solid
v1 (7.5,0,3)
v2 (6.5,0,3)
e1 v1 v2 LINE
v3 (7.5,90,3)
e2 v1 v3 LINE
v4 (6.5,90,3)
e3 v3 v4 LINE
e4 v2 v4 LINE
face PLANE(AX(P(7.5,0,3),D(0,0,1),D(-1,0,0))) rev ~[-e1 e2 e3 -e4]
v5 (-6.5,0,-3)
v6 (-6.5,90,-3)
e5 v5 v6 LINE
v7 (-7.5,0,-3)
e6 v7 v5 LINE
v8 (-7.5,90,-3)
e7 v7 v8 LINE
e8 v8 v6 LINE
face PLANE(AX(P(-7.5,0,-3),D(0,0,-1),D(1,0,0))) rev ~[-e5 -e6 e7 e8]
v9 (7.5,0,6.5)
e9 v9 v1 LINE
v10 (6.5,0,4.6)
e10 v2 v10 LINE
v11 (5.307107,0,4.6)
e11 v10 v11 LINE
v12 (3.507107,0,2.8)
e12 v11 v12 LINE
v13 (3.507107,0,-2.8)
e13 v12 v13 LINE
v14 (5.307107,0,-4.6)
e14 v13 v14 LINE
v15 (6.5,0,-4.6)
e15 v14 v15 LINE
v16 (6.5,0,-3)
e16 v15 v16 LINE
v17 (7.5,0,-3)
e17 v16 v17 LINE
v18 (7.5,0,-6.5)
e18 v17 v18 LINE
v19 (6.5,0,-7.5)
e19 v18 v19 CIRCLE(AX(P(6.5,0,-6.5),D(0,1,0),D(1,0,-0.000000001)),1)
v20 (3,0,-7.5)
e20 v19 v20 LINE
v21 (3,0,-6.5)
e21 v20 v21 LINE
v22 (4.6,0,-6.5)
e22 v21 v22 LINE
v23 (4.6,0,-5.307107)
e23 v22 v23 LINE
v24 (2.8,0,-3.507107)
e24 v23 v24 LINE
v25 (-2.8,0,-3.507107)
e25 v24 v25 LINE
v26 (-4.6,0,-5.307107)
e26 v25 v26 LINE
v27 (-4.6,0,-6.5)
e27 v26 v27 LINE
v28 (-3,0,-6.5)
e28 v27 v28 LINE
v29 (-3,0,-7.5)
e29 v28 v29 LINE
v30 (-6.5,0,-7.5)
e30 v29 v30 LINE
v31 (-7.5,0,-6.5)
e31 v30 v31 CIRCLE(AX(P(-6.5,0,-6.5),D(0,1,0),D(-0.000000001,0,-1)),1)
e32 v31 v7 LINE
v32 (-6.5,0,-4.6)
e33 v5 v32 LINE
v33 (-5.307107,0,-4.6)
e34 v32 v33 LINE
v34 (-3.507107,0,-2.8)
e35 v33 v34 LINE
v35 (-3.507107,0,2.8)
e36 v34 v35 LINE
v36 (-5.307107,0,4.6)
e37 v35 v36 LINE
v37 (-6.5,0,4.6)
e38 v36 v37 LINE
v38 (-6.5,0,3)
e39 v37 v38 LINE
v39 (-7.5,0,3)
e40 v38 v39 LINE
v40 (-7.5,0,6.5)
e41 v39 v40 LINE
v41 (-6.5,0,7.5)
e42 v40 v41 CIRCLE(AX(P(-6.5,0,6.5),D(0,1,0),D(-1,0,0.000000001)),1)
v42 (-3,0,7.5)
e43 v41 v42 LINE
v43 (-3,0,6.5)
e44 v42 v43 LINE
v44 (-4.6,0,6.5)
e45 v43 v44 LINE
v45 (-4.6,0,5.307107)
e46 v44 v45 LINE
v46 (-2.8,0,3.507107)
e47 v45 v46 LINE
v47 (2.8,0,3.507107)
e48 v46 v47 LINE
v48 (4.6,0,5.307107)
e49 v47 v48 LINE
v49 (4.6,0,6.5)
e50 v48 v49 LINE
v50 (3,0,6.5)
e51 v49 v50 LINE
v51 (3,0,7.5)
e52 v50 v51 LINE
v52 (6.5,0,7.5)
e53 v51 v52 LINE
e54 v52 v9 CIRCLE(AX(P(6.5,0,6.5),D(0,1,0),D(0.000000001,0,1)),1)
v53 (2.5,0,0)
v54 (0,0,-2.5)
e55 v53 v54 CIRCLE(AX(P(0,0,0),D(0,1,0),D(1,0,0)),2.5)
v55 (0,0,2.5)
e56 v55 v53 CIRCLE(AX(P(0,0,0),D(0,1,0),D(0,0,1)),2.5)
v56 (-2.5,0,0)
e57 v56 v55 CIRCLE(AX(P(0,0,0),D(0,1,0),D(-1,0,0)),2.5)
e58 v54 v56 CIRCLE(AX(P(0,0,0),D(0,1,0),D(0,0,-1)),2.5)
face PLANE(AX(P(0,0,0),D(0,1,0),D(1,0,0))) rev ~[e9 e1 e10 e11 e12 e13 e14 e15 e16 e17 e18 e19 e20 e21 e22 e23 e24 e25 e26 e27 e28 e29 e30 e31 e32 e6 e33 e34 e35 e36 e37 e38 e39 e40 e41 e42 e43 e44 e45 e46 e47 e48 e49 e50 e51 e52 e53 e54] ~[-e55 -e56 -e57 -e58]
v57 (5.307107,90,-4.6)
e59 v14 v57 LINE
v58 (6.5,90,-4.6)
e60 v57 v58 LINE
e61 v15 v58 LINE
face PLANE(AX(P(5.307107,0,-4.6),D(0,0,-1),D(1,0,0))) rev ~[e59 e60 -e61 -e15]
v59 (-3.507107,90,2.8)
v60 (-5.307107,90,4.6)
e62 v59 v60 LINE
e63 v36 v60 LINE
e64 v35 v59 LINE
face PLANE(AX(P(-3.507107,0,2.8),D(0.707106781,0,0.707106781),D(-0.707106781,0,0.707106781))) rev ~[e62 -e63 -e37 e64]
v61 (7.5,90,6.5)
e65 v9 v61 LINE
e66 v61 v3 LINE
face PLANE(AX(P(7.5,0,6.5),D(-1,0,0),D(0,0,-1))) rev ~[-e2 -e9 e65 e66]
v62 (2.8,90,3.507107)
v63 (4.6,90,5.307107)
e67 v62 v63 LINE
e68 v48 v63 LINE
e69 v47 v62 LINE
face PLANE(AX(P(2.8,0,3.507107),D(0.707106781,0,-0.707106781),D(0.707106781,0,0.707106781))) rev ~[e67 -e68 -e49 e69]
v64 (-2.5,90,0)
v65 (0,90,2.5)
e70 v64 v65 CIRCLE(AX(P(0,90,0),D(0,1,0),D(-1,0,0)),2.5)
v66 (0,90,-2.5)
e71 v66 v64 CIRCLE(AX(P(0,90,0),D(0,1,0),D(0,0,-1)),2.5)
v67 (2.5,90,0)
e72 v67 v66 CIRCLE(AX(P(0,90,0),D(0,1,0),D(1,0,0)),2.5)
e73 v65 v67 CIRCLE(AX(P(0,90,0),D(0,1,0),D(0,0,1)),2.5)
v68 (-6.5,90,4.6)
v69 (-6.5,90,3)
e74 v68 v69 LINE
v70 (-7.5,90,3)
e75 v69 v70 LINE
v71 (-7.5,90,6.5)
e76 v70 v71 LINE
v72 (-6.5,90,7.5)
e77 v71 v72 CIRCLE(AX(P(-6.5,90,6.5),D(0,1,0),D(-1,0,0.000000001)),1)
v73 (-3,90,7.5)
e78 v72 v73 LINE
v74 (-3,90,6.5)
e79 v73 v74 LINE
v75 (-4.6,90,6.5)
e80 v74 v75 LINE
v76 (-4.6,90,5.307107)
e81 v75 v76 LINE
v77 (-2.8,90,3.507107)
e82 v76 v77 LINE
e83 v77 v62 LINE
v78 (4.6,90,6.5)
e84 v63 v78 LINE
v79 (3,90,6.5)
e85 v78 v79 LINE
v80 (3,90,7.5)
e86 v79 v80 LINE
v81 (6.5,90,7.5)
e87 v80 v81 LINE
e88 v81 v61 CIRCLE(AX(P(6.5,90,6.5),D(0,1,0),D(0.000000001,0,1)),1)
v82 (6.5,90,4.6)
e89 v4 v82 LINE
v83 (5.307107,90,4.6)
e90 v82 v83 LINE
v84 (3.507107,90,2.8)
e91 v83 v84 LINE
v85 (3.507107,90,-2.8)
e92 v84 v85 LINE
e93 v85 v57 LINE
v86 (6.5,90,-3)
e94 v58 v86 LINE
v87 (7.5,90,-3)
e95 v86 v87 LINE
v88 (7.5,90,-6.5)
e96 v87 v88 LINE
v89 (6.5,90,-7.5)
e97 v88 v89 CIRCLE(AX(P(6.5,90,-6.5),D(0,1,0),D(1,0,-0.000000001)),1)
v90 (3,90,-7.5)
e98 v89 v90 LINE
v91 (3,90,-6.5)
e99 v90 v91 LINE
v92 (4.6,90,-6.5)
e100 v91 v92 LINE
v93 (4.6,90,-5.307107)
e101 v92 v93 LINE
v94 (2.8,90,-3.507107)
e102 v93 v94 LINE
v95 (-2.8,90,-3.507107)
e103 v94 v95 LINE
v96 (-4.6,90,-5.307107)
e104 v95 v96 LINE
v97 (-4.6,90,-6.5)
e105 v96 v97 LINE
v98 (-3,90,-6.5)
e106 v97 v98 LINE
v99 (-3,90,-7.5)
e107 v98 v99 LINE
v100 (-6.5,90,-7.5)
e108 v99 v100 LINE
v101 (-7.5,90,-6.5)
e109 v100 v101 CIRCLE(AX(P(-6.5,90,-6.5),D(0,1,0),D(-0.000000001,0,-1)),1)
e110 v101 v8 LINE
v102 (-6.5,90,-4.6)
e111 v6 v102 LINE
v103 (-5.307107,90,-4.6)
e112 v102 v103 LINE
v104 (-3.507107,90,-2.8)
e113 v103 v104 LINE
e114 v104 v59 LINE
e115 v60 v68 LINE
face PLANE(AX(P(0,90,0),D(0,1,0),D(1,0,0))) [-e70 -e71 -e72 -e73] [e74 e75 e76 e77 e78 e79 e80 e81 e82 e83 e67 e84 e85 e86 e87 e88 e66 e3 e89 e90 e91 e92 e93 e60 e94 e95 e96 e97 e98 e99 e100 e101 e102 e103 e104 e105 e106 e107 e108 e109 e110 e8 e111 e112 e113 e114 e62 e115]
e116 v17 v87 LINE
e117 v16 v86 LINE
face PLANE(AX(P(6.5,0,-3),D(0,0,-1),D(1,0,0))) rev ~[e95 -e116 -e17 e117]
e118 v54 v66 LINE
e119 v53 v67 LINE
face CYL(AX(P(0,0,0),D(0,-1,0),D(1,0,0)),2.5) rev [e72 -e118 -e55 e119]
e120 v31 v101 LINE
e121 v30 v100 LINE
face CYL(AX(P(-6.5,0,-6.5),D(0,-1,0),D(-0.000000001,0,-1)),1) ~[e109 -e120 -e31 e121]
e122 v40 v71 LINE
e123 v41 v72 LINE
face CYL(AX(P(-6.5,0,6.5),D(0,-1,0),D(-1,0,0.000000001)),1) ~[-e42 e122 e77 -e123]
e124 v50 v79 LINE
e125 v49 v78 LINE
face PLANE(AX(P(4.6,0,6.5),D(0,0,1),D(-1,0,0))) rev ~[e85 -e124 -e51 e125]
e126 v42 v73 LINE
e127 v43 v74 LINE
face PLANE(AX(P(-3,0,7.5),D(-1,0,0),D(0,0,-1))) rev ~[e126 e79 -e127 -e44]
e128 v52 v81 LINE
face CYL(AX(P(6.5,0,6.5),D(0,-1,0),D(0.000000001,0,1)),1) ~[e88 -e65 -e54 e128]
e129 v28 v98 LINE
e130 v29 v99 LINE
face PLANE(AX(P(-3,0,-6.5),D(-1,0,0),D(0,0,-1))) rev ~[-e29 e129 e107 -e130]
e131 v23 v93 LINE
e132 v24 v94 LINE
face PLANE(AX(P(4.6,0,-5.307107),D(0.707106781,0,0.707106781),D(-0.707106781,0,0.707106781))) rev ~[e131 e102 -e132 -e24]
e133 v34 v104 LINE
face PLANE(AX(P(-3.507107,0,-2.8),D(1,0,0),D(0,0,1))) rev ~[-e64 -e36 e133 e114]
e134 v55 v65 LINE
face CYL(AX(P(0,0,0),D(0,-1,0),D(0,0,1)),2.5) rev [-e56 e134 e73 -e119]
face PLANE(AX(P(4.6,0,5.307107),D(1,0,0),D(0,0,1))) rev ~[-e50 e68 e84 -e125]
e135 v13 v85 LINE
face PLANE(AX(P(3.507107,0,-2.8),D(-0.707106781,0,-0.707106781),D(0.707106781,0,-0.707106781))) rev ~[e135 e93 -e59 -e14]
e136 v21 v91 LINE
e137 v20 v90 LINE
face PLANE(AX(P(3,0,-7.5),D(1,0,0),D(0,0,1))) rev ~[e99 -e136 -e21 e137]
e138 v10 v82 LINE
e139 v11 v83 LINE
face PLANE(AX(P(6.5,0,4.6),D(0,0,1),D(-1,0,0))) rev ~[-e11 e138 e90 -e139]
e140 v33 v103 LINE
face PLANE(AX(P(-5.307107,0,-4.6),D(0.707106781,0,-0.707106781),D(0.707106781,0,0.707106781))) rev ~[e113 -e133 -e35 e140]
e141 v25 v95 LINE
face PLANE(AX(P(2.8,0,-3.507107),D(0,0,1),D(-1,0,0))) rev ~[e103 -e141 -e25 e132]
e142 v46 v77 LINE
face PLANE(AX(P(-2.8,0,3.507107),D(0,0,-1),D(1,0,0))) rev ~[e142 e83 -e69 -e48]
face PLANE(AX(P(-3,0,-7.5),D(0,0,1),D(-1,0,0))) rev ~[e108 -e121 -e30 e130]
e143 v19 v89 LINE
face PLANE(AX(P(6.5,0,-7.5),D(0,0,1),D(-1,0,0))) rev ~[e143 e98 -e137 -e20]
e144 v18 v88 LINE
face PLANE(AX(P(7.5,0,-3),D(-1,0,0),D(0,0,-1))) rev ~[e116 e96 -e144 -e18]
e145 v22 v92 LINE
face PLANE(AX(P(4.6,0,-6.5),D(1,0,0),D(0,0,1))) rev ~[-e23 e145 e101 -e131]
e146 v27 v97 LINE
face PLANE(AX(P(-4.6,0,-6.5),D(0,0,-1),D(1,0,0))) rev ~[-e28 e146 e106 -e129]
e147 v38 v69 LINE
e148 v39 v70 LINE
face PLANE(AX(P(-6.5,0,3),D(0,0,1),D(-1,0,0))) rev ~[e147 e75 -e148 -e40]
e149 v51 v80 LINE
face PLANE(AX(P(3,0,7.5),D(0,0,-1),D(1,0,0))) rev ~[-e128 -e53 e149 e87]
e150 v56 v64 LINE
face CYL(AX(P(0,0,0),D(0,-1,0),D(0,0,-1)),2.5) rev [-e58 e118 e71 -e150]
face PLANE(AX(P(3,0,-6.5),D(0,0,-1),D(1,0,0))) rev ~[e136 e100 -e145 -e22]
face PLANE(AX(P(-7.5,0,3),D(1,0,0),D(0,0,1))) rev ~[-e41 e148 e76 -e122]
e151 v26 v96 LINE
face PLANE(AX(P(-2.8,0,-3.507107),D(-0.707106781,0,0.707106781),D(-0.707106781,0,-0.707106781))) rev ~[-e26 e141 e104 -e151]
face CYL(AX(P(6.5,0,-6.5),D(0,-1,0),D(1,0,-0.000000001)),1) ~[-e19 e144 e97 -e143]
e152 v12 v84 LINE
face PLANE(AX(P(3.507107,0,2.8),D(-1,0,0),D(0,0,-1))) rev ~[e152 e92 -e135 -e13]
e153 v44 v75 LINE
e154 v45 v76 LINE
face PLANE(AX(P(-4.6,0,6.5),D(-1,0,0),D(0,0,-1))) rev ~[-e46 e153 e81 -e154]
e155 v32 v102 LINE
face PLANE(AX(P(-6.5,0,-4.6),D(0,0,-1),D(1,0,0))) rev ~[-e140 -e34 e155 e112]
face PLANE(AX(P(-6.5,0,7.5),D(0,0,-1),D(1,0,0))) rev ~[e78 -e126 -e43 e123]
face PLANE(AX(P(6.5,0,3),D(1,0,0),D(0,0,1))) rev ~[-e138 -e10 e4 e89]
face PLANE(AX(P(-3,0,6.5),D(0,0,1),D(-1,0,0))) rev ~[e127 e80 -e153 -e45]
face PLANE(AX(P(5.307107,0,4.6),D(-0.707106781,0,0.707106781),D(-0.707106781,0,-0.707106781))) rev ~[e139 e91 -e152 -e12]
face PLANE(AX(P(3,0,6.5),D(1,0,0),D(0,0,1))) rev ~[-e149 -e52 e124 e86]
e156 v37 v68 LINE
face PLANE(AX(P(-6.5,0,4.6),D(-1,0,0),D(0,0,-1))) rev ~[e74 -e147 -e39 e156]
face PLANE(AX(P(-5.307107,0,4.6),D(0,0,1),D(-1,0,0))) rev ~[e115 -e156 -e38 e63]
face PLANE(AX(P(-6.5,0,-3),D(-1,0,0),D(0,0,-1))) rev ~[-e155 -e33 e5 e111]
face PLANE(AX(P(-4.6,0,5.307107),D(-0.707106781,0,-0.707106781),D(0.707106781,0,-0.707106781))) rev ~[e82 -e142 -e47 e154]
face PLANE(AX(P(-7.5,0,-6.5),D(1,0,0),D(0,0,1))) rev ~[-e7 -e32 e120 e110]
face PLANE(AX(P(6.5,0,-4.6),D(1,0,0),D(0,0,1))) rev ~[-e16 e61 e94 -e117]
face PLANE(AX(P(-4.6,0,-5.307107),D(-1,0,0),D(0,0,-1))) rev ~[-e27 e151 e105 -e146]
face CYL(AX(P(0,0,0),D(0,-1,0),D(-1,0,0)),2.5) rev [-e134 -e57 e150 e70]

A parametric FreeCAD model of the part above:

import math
import FreeCAD as App
import Part
import Sketcher

V = App.Vector
Q = App.Units.Quantity

doc = App.newDocument("Part")
body = doc.addObject("PartDesign::Body", "Body")

sketch1 = doc.addObject("Sketcher::SketchObject", "Sketch")
body.addObject(sketch1)
sketch1.AttachmentSupport = (doc.XZ_Plane, [""])
sketch1.MapMode = "FlatFace"
sketch1.addGeometry([
    Part.LineSegment(V(-7.5, 3, 0), V(-7.5, 6.5, 0)),
    Part.ArcOfCircle(Part.Circle(V(-6.5, 6.5, 0), V(0, 0, 1), 1), math.radians(90), math.radians(180)),
    Part.LineSegment(V(-6.5, 7.5, 0), V(-3, 7.5, 0)),
    Part.LineSegment(V(-3, 7.5, 0), V(-3, 6.5, 0)),
    Part.LineSegment(V(-3, 6.5, 0), V(-4.6, 6.5, 0)),
    Part.LineSegment(V(-4.6, 6.5, 0), V(-4.6, 5.3, 0)),
    Part.LineSegment(V(-4.6, 5.3, 0), V(-2.8, 3.5, 0)),
    Part.LineSegment(V(-2.8, 3.5, 0), V(2.8, 3.5, 0)),
    Part.LineSegment(V(2.8, 3.5, 0), V(4.6, 5.3, 0)),
    Part.LineSegment(V(4.6, 5.3, 0), V(4.6, 6.5, 0)),
    Part.LineSegment(V(4.6, 6.5, 0), V(3, 6.5, 0)),
    Part.LineSegment(V(3, 6.5, 0), V(3, 7.5, 0)),
    Part.LineSegment(V(3, 7.5, 0), V(6.5, 7.5, 0)),
    Part.ArcOfCircle(Part.Circle(V(6.5, 6.5, 0), V(0, 0, 1), 1), math.radians(0), math.radians(90)),
    Part.LineSegment(V(7.5, 6.5, 0), V(7.5, 3, 0)),
    Part.LineSegment(V(7.5, 3, 0), V(6.5, 3, 0)),
    Part.LineSegment(V(6.5, 3, 0), V(6.5, 4.6, 0)),
    Part.LineSegment(V(6.5, 4.6, 0), V(5.3, 4.6, 0)),
    Part.LineSegment(V(5.3, 4.6, 0), V(3.5, 2.8, 0)),
    Part.LineSegment(V(3.5, 2.8, 0), V(3.5, -2.8, 0)),
    Part.LineSegment(V(3.5, -2.8, 0), V(5.3, -4.6, 0)),
    Part.LineSegment(V(5.3, -4.6, 0), V(6.5, -4.6, 0)),
    Part.LineSegment(V(6.5, -4.6, 0), V(6.5, -3, 0)),
    Part.LineSegment(V(6.5, -3, 0), V(7.5, -3, 0)),
    Part.LineSegment(V(7.5, -3, 0), V(7.5, -6.5, 0)),
    Part.ArcOfCircle(Part.Circle(V(6.5, -6.5, 0), V(0, 0, 1), 1), math.radians(-90), math.radians(0)),
    Part.LineSegment(V(6.5, -7.5, 0), V(3, -7.5, 0)),
    Part.LineSegment(V(3, -7.5, 0), V(3, -6.5, 0)),
    Part.LineSegment(V(3, -6.5, 0), V(4.6, -6.5, 0)),
    Part.LineSegment(V(4.6, -6.5, 0), V(4.6, -5.3, 0)),
    Part.LineSegment(V(4.6, -5.3, 0), V(2.8, -3.5, 0)),
    Part.LineSegment(V(2.8, -3.5, 0), V(-2.8, -3.5, 0)),
    Part.LineSegment(V(-2.8, -3.5, 0), V(-4.6, -5.3, 0)),
    Part.LineSegment(V(-4.6, -5.3, 0), V(-4.6, -6.5, 0)),
    Part.LineSegment(V(-4.6, -6.5, 0), V(-3, -6.5, 0)),
    Part.LineSegment(V(-3, -6.5, 0), V(-3, -7.5, 0)),
    Part.LineSegment(V(-3, -7.5, 0), V(-6.5, -7.5, 0)),
    Part.ArcOfCircle(Part.Circle(V(-6.5, -6.5, 0), V(0, 0, 1), 1), math.radians(-180), math.radians(-90)),
    Part.LineSegment(V(-7.5, -6.5, 0), V(-7.5, -3, 0)),
    Part.LineSegment(V(-7.5, -3, 0), V(-6.5, -3, 0)),
    Part.LineSegment(V(-6.5, -3, 0), V(-6.5, -4.6, 0)),
    Part.LineSegment(V(-6.5, -4.6, 0), V(-5.3, -4.6, 0)),
    Part.LineSegment(V(-5.3, -4.6, 0), V(-3.5, -2.8, 0)),
    Part.LineSegment(V(-3.5, -2.8, 0), V(-3.5, 2.8, 0)),
    Part.LineSegment(V(-3.5, 2.8, 0), V(-5.3, 4.6, 0)),
    Part.LineSegment(V(-5.3, 4.6, 0), V(-6.5, 4.6, 0)),
    Part.LineSegment(V(-6.5, 4.6, 0), V(-6.5, 3, 0)),
    Part.LineSegment(V(-6.5, 3, 0), V(-7.5, 3, 0)),
    Part.ArcOfCircle(Part.Circle(V(0, 0, 0), V(0, 0, 1), 2.5), math.radians(90), math.radians(180)),
    Part.ArcOfCircle(Part.Circle(V(0, 0, 0), V(0, 0, 1), 2.5), math.radians(180), math.radians(270)),
    Part.ArcOfCircle(Part.Circle(V(0, 0, 0), V(0, 0, 1), 2.5), math.radians(-90), math.radians(0)),
    Part.ArcOfCircle(Part.Circle(V(0, 0, 0), V(0, 0, 1), 2.5), math.radians(0), math.radians(90)),
], False)
sketch1.addConstraint([
    Sketcher.Constraint("Tangent", 0, 2, 1, 2),
    Sketcher.Constraint("Tangent", 1, 1, 2, 1),
    Sketcher.Constraint("Coincident", 2, 2, 3, 1),
    Sketcher.Constraint("Coincident", 3, 2, 4, 1),
    Sketcher.Constraint("Coincident", 4, 2, 5, 1),
    Sketcher.Constraint("Coincident", 5, 2, 6, 1),
    Sketcher.Constraint("Coincident", 6, 2, 7, 1),
    Sketcher.Constraint("Coincident", 7, 2, 8, 1),
    Sketcher.Constraint("Coincident", 8, 2, 9, 1),
    Sketcher.Constraint("Coincident", 9, 2, 10, 1),
    Sketcher.Constraint("Coincident", 10, 2, 11, 1),
    Sketcher.Constraint("Coincident", 11, 2, 12, 1),
    Sketcher.Constraint("Tangent", 12, 2, 13, 2),
    Sketcher.Constraint("Tangent", 13, 1, 14, 1),
    Sketcher.Constraint("Coincident", 14, 2, 15, 1),
    Sketcher.Constraint("Coincident", 15, 2, 16, 1),
    Sketcher.Constraint("Coincident", 16, 2, 17, 1),
    Sketcher.Constraint("Coincident", 17, 2, 18, 1),
    Sketcher.Constraint("Coincident", 18, 2, 19, 1),
    Sketcher.Constraint("Coincident", 19, 2, 20, 1),
    Sketcher.Constraint("Coincident", 20, 2, 21, 1),
    Sketcher.Constraint("Coincident", 21, 2, 22, 1),
    Sketcher.Constraint("Coincident", 22, 2, 23, 1),
    Sketcher.Constraint("Coincident", 23, 2, 24, 1),
    Sketcher.Constraint("Tangent", 24, 2, 25, 2),
    Sketcher.Constraint("Tangent", 25, 1, 26, 1),
    Sketcher.Constraint("Coincident", 26, 2, 27, 1),
    Sketcher.Constraint("Coincident", 27, 2, 28, 1),
    Sketcher.Constraint("Coincident", 28, 2, 29, 1),
    Sketcher.Constraint("Coincident", 29, 2, 30, 1),
    Sketcher.Constraint("Coincident", 30, 2, 31, 1),
    Sketcher.Constraint("Coincident", 31, 2, 32, 1),
    Sketcher.Constraint("Coincident", 32, 2, 33, 1),
    Sketcher.Constraint("Coincident", 33, 2, 34, 1),
    Sketcher.Constraint("Coincident", 34, 2, 35, 1),
    Sketcher.Constraint("Coincident", 35, 2, 36, 1),
    Sketcher.Constraint("Tangent", 36, 2, 37, 2),
    Sketcher.Constraint("Tangent", 37, 1, 38, 1),
    Sketcher.Constraint("Coincident", 38, 2, 39, 1),
    Sketcher.Constraint("Coincident", 39, 2, 40, 1),
    Sketcher.Constraint("Coincident", 40, 2, 41, 1),
    Sketcher.Constraint("Coincident", 41, 2, 42, 1),
    Sketcher.Constraint("Coincident", 42, 2, 43, 1),
    Sketcher.Constraint("Coincident", 43, 2, 44, 1),
    Sketcher.Constraint("Coincident", 44, 2, 45, 1),
    Sketcher.Constraint("Coincident", 45, 2, 46, 1),
    Sketcher.Constraint("Coincident", 46, 2, 47, 1),
    Sketcher.Constraint("Coincident", 47, 2, 0, 1),
    Sketcher.Constraint("Tangent", 48, 2, 49, 1),
    Sketcher.Constraint("Tangent", 49, 2, 50, 1),
    Sketcher.Constraint("Tangent", 50, 2, 51, 1),
    Sketcher.Constraint("Tangent", 51, 2, 48, 1),
    Sketcher.Constraint("Vertical", 0),
    Sketcher.Constraint("Horizontal", 2),
    Sketcher.Constraint("Vertical", 3),
    Sketcher.Constraint("Horizontal", 4),
    Sketcher.Constraint("Vertical", 5),
    Sketcher.Constraint("Horizontal", 7),
    Sketcher.Constraint("Vertical", 9),
    Sketcher.Constraint("Horizontal", 10),
    Sketcher.Constraint("Vertical", 11),
    Sketcher.Constraint("Horizontal", 12),
    Sketcher.Constraint("Vertical", 14),
    Sketcher.Constraint("Horizontal", 15),
    Sketcher.Constraint("Vertical", 16),
    Sketcher.Constraint("Horizontal", 17),
    Sketcher.Constraint("Vertical", 19),
    Sketcher.Constraint("Horizontal", 21),
    Sketcher.Constraint("Vertical", 22),
    Sketcher.Constraint("Horizontal", 23),
    Sketcher.Constraint("Vertical", 24),
    Sketcher.Constraint("Horizontal", 26),
    Sketcher.Constraint("Vertical", 27),
    Sketcher.Constraint("Horizontal", 28),
    Sketcher.Constraint("Vertical", 29),
    Sketcher.Constraint("Horizontal", 31),
    Sketcher.Constraint("Vertical", 33),
    Sketcher.Constraint("Horizontal", 34),
    Sketcher.Constraint("Vertical", 35),
    Sketcher.Constraint("Horizontal", 36),
    Sketcher.Constraint("Vertical", 38),
    Sketcher.Constraint("Horizontal", 39),
    Sketcher.Constraint("Vertical", 40),
    Sketcher.Constraint("Horizontal", 41),
    Sketcher.Constraint("Vertical", 43),
    Sketcher.Constraint("Horizontal", 45),
    Sketcher.Constraint("Vertical", 46),
    Sketcher.Constraint("Horizontal", 47),
    Sketcher.Constraint("Coincident", 48, 3, -1, 1),
    Sketcher.Constraint("Equal", 1, 13),
    Sketcher.Constraint("Equal", 13, 25),
    Sketcher.Constraint("Equal", 25, 37),
    Sketcher.Constraint("Equal", 48, 49),
    Sketcher.Constraint("Symmetric", 1, 3, 25, 3, -1, 1),
    Sketcher.Constraint("Symmetric", 13, 3, 37, 3, -1, 1),
    Sketcher.Constraint("Symmetric", 3, 2, 27, 2, -1, 1),
    Sketcher.Constraint("Symmetric", 5, 2, 29, 2, -1, 1),
    Sketcher.Constraint("Symmetric", 6, 2, 30, 2, -1, 1),
    Sketcher.Constraint("Symmetric", 8, 2, 32, 2, -1, 1),
    Sketcher.Constraint("Symmetric", 10, 2, 34, 2, -1, 1),
    Sketcher.Constraint("Symmetric", 15, 2, 39, 2, -1, 1),
    Sketcher.Constraint("Symmetric", 17, 2, 41, 2, -1, 1),
    Sketcher.Constraint("Symmetric", 18, 2, 42, 2, -1, 1),
    Sketcher.Constraint("Symmetric", 20, 2, 44, 2, -1, 1),
    Sketcher.Constraint("Symmetric", 22, 2, 46, 2, -1, 1),
    Sketcher.Constraint("Symmetric", 1, 3, 13, 3, -2),
    Sketcher.Constraint("Symmetric", 5, 2, 8, 2, -2),
    Sketcher.Constraint("Symmetric", 3, 2, 10, 2, -2),
    Sketcher.Constraint("Symmetric", 22, 2, 39, 2, -2),
    Sketcher.Constraint("Symmetric", 20, 2, 41, 2, -2),
    Sketcher.Constraint("PointOnObject", 48, 2, -1),
    Sketcher.Constraint("PointOnObject", 49, 2, -2),
    Sketcher.Constraint("PointOnObject", 50, 2, -1),
    Sketcher.Constraint("PointOnObject", 51, 2, -2),
    Sketcher.Constraint("Perpendicular", 6, 8),
    Sketcher.Constraint("Parallel", 8, 18),
    Sketcher.Constraint("Perpendicular", 18, 20),
    Sketcher.Constraint("Perpendicular", 30, 32),
    Sketcher.Constraint("Perpendicular", 42, 44),
    Sketcher.Constraint("Horizontal", 0, 2, 3, 2),
    Sketcher.Constraint("Horizontal", 19, 2, 42, 2),
    Sketcher.Constraint("Vertical", 12, 2, 15, 2),
    Sketcher.Constraint("Equal", 36, 0),
    Sketcher.Constraint("Equal", 45, 5),
    Sketcher.Constraint("Equal", 34, 16),
    Sketcher.Constraint("Equal", 31, 19),
    Sketcher.Constraint("Equal", 8, 18),
    Sketcher.Constraint("Radius", 1, Q("1 mm")),
    Sketcher.Constraint("Radius", 48, Q("2.5 mm")),
    Sketcher.Constraint("DistanceX", 2, 1, 2, 2, Q("3.5 mm")),
    Sketcher.Constraint("DistanceX", 4, 2, 4, 1, Q("1.6 mm")),
    Sketcher.Constraint("DistanceX", 7, 1, 7, 2, Q("5.6 mm")),
    Sketcher.Constraint("DistanceX", 2, 2, -1, 1, Q("3 mm")),
    Sketcher.Constraint("DistanceX", 17, 2, 17, 1, Q("1.192893 mm")),
])
pad1 = doc.addObject("PartDesign::Pad", "Pad")
body.addObject(pad1)
pad1.Profile = sketch1
pad1.Length = 90
pad1.Reversed = True

doc.recompute()
